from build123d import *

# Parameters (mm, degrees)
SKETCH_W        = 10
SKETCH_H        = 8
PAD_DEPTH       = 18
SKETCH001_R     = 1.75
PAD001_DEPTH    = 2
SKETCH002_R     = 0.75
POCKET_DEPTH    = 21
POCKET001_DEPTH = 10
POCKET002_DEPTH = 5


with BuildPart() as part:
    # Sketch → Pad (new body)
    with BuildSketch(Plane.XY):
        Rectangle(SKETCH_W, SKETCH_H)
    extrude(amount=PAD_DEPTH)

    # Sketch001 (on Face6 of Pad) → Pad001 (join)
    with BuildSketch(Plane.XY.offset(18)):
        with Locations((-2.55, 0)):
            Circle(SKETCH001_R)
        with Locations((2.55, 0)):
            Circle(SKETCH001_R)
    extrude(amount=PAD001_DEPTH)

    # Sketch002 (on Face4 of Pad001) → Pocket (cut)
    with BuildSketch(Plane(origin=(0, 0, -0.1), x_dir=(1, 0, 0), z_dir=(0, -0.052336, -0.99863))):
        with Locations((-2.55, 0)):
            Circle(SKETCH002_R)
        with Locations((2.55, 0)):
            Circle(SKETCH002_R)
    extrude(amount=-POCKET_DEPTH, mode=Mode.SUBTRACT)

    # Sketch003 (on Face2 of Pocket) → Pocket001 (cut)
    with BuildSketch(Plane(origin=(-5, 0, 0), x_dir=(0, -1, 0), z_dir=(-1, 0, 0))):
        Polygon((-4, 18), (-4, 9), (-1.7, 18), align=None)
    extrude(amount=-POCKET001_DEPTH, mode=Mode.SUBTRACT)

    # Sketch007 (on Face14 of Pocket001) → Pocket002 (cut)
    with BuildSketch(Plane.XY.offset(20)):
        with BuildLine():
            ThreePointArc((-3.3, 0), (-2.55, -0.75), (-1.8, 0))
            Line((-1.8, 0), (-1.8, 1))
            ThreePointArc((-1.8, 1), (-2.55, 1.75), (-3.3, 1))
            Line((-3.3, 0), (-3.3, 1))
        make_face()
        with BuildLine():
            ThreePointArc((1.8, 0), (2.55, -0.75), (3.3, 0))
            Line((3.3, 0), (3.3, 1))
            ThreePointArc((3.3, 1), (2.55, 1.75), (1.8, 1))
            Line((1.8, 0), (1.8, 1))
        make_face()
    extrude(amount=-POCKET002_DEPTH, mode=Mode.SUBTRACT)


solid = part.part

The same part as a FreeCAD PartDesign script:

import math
import FreeCAD as App
import Part
import Sketcher

V = App.Vector

doc = App.newDocument("Part")
body = doc.addObject("PartDesign::Body", "Body")

# Sketch on XY plane
sketch1 = body.newObject("Sketcher::SketchObject", "Sketch")
sketch1.AttachmentSupport = (doc.getObject("XY_Plane"), [""])
sketch1.MapMode = "FlatFace"
sketch1.addGeometry([
    Part.LineSegment(V(-5, 4, 0), V(-5, -4, 0)),
    Part.LineSegment(V(-5, -4, 0), V(5, -4, 0)),
    Part.LineSegment(V(5, -4, 0), V(5, 4, 0)),
    Part.LineSegment(V(5, 4, 0), V(-5, 4, 0)),
], False)
sketch1.addConstraint([
    Sketcher.Constraint("Coincident", 0, 2, 1, 1),
    Sketcher.Constraint("Coincident", 1, 2, 2, 1),
    Sketcher.Constraint("Coincident", 2, 2, 3, 1),
    Sketcher.Constraint("Coincident", 3, 2, 0, 1),
    Sketcher.Constraint("Vertical", 0),
    Sketcher.Constraint("Horizontal", 1),
    Sketcher.Constraint("Vertical", 2),
    Sketcher.Constraint("Horizontal", 3),
    Sketcher.Constraint("Symmetric", 0, 2, 2, 2, -1, 1),
    Sketcher.Constraint("DistanceX", 1, 1, 1, 2, 10.0),
    Sketcher.Constraint("DistanceY", 0, 2, 0, 1, 8.0),
])
pad1 = body.newObject("PartDesign::Pad", "Pad")
pad1.Profile = sketch1
pad1.Length = 18

# Sketch on XY plane
sketch2 = body.newObject("Sketcher::SketchObject", "Sketch001")
sketch2.AttachmentSupport = (doc.getObject("XY_Plane"), [""])
sketch2.MapMode = "FlatFace"
sketch2.AttachmentOffset = App.Placement(V(0, 0, 18), App.Rotation())
sketch2.addGeometry([
    Part.Circle(V(-2.5, 0, 0), V(0, 0, 1), 1.8),
    Part.Circle(V(2.5, 0, 0), V(0, 0, 1), 1.8),
], False)
sketch2.addConstraint([
    Sketcher.Constraint("Equal", 0, 1),
    Sketcher.Constraint("Symmetric", 0, 3, 1, 3, -1, 1),
    Sketcher.Constraint("PointOnObject", 0, 3, -1),
    Sketcher.Constraint("Diameter", 0, 3.5),
    Sketcher.Constraint("DistanceX", 0, 3, 1, 3, 5.1),
])
pad2 = body.newObject("PartDesign::Pad", "Pad001")
pad2.Profile = sketch2
pad2.Length = 2

# Sketch on an angled plane
sketch3 = body.newObject("Sketcher::SketchObject", "Sketch002")
sketch3.Placement = App.Placement(V(0, 0, -0.1), App.Rotation(V(1, 0, 0), V(0, -0.998629534, 0.052335976), V(0, -0.052335976, -0.998629534), "ZXY"))
sketch3.addGeometry([
    Part.Circle(V(-2.5, 0, 0), V(0, 0, 1), 0.8),
    Part.Circle(V(2.5, 0, 0), V(0, 0, 1), 0.8),
], False)
sketch3.addConstraint([
    Sketcher.Constraint("Equal", 0, 1),
    Sketcher.Constraint("Symmetric", 0, 3, 1, 3, -1, 1),
    Sketcher.Constraint("PointOnObject", 0, 3, -1),
    Sketcher.Constraint("Diameter", 0, 1.5),
    Sketcher.Constraint("DistanceX", 0, 3, 1, 3, 5.1),
])
pocket1 = body.newObject("PartDesign::Pocket", "Pocket")
pocket1.Profile = sketch3
pocket1.Length = 21

# Sketch on YZ plane
sketch4 = body.newObject("Sketcher::SketchObject", "Sketch003")
sketch4.AttachmentSupport = (doc.getObject("YZ_Plane"), [""])
sketch4.MapMode = "FlatFace"
sketch4.AttachmentOffset = App.Placement(V(0, 0, -5), App.Rotation())
sketch4.addGeometry([
    Part.LineSegment(V(4, 18, 0), V(4, 9, 0)),
    Part.LineSegment(V(4, 9, 0), V(1.7, 18, 0)),
    Part.LineSegment(V(1.7, 18, 0), V(4, 18, 0)),
], False)
sketch4.addConstraint([
    Sketcher.Constraint("Coincident", 0, 2, 1, 1),
    Sketcher.Constraint("Coincident", 1, 2, 2, 1),
    Sketcher.Constraint("Coincident", 2, 2, 0, 1),
    Sketcher.Constraint("Vertical", 0),
    Sketcher.Constraint("Horizontal", 2),
    Sketcher.Constraint("DistanceY", 0, 2, 0, 1, 9.0),
    Sketcher.Constraint("DistanceX", 2, 1, 2, 2, 2.3),
    Sketcher.Constraint("DistanceX", -1, 1, 0, 2, 4.0),
    Sketcher.Constraint("DistanceY", -1, 1, 0, 2, 9.0),
])
pocket2 = body.newObject("PartDesign::Pocket", "Pocket001")
pocket2.Profile = sketch4
pocket2.Length = 10
pocket2.Reversed = True

# Sketch on XY plane
sketch5 = body.newObject("Sketcher::SketchObject", "Sketch004")
sketch5.AttachmentSupport = (doc.getObject("XY_Plane"), [""])
sketch5.MapMode = "FlatFace"
sketch5.AttachmentOffset = App.Placement(V(0, 0, 20), App.Rotation())
sketch5.addGeometry([
    Part.ArcOfCircle(Part.Circle(V(-2.5, 0, 0), V(0, 0, 1), 0.8), math.radians(180), math.radians(360)),  # 0
    Part.LineSegment(V(-1.8, 0, 0), V(-1.8, 1, 0)),  # 1
    Part.ArcOfCircle(Part.Circle(V(-2.5, 1, 0), V(0, 0, 1), 0.8), math.radians(0), math.radians(180)),  # 2
    Part.LineSegment(V(-3.3, 1, 0), V(-3.3, 0, 0)),  # 3
    Part.ArcOfCircle(Part.Circle(V(2.5, 0, 0), V(0, 0, 1), 0.8), math.radians(180), math.radians(360)),  # 4
    Part.LineSegment(V(3.3, 0, 0), V(3.3, 1, 0)),  # 5
    Part.ArcOfCircle(Part.Circle(V(2.5, 1, 0), V(0, 0, 1), 0.8), math.radians(0), math.radians(180)),  # 6
    Part.LineSegment(V(1.8, 1, 0), V(1.8, 0, 0)),  # 7
], False)
sketch5.addConstraint([
    Sketcher.Constraint("Tangent", 0, 2, 1, 1),
    Sketcher.Constraint("Tangent", 1, 2, 2, 1),
    Sketcher.Constraint("Tangent", 2, 2, 3, 1),
    Sketcher.Constraint("Tangent", 3, 2, 0, 1),
    Sketcher.Constraint("Tangent", 4, 2, 5, 1),
    Sketcher.Constraint("Tangent", 5, 2, 6, 1),
    Sketcher.Constraint("Tangent", 6, 2, 7, 1),
    Sketcher.Constraint("Tangent", 7, 2, 4, 1),
    Sketcher.Constraint("Vertical", 1),
    Sketcher.Constraint("Vertical", 3),
    Sketcher.Constraint("Vertical", 5),
    Sketcher.Constraint("Vertical", 7),
    Sketcher.Constraint("Equal", 2, 4),
    Sketcher.Constraint("Symmetric", 0, 3, 4, 3, -1, 1),
    Sketcher.Constraint("PointOnObject", 0, 3, -1),
    Sketcher.Constraint("Horizontal", 2, 3, 6, 3),
    Sketcher.Constraint("DistanceY", 1, 1, 1, 2, 1.0),
    Sketcher.Constraint("Radius", 0, 0.75),
    Sketcher.Constraint("DistanceX", 0, 2, -1, 1, 1.8),
])
pocket3 = body.newObject("PartDesign::Pocket", "Pocket002")
pocket3.Profile = sketch5
pocket3.Length = 5

doc.recompute()
